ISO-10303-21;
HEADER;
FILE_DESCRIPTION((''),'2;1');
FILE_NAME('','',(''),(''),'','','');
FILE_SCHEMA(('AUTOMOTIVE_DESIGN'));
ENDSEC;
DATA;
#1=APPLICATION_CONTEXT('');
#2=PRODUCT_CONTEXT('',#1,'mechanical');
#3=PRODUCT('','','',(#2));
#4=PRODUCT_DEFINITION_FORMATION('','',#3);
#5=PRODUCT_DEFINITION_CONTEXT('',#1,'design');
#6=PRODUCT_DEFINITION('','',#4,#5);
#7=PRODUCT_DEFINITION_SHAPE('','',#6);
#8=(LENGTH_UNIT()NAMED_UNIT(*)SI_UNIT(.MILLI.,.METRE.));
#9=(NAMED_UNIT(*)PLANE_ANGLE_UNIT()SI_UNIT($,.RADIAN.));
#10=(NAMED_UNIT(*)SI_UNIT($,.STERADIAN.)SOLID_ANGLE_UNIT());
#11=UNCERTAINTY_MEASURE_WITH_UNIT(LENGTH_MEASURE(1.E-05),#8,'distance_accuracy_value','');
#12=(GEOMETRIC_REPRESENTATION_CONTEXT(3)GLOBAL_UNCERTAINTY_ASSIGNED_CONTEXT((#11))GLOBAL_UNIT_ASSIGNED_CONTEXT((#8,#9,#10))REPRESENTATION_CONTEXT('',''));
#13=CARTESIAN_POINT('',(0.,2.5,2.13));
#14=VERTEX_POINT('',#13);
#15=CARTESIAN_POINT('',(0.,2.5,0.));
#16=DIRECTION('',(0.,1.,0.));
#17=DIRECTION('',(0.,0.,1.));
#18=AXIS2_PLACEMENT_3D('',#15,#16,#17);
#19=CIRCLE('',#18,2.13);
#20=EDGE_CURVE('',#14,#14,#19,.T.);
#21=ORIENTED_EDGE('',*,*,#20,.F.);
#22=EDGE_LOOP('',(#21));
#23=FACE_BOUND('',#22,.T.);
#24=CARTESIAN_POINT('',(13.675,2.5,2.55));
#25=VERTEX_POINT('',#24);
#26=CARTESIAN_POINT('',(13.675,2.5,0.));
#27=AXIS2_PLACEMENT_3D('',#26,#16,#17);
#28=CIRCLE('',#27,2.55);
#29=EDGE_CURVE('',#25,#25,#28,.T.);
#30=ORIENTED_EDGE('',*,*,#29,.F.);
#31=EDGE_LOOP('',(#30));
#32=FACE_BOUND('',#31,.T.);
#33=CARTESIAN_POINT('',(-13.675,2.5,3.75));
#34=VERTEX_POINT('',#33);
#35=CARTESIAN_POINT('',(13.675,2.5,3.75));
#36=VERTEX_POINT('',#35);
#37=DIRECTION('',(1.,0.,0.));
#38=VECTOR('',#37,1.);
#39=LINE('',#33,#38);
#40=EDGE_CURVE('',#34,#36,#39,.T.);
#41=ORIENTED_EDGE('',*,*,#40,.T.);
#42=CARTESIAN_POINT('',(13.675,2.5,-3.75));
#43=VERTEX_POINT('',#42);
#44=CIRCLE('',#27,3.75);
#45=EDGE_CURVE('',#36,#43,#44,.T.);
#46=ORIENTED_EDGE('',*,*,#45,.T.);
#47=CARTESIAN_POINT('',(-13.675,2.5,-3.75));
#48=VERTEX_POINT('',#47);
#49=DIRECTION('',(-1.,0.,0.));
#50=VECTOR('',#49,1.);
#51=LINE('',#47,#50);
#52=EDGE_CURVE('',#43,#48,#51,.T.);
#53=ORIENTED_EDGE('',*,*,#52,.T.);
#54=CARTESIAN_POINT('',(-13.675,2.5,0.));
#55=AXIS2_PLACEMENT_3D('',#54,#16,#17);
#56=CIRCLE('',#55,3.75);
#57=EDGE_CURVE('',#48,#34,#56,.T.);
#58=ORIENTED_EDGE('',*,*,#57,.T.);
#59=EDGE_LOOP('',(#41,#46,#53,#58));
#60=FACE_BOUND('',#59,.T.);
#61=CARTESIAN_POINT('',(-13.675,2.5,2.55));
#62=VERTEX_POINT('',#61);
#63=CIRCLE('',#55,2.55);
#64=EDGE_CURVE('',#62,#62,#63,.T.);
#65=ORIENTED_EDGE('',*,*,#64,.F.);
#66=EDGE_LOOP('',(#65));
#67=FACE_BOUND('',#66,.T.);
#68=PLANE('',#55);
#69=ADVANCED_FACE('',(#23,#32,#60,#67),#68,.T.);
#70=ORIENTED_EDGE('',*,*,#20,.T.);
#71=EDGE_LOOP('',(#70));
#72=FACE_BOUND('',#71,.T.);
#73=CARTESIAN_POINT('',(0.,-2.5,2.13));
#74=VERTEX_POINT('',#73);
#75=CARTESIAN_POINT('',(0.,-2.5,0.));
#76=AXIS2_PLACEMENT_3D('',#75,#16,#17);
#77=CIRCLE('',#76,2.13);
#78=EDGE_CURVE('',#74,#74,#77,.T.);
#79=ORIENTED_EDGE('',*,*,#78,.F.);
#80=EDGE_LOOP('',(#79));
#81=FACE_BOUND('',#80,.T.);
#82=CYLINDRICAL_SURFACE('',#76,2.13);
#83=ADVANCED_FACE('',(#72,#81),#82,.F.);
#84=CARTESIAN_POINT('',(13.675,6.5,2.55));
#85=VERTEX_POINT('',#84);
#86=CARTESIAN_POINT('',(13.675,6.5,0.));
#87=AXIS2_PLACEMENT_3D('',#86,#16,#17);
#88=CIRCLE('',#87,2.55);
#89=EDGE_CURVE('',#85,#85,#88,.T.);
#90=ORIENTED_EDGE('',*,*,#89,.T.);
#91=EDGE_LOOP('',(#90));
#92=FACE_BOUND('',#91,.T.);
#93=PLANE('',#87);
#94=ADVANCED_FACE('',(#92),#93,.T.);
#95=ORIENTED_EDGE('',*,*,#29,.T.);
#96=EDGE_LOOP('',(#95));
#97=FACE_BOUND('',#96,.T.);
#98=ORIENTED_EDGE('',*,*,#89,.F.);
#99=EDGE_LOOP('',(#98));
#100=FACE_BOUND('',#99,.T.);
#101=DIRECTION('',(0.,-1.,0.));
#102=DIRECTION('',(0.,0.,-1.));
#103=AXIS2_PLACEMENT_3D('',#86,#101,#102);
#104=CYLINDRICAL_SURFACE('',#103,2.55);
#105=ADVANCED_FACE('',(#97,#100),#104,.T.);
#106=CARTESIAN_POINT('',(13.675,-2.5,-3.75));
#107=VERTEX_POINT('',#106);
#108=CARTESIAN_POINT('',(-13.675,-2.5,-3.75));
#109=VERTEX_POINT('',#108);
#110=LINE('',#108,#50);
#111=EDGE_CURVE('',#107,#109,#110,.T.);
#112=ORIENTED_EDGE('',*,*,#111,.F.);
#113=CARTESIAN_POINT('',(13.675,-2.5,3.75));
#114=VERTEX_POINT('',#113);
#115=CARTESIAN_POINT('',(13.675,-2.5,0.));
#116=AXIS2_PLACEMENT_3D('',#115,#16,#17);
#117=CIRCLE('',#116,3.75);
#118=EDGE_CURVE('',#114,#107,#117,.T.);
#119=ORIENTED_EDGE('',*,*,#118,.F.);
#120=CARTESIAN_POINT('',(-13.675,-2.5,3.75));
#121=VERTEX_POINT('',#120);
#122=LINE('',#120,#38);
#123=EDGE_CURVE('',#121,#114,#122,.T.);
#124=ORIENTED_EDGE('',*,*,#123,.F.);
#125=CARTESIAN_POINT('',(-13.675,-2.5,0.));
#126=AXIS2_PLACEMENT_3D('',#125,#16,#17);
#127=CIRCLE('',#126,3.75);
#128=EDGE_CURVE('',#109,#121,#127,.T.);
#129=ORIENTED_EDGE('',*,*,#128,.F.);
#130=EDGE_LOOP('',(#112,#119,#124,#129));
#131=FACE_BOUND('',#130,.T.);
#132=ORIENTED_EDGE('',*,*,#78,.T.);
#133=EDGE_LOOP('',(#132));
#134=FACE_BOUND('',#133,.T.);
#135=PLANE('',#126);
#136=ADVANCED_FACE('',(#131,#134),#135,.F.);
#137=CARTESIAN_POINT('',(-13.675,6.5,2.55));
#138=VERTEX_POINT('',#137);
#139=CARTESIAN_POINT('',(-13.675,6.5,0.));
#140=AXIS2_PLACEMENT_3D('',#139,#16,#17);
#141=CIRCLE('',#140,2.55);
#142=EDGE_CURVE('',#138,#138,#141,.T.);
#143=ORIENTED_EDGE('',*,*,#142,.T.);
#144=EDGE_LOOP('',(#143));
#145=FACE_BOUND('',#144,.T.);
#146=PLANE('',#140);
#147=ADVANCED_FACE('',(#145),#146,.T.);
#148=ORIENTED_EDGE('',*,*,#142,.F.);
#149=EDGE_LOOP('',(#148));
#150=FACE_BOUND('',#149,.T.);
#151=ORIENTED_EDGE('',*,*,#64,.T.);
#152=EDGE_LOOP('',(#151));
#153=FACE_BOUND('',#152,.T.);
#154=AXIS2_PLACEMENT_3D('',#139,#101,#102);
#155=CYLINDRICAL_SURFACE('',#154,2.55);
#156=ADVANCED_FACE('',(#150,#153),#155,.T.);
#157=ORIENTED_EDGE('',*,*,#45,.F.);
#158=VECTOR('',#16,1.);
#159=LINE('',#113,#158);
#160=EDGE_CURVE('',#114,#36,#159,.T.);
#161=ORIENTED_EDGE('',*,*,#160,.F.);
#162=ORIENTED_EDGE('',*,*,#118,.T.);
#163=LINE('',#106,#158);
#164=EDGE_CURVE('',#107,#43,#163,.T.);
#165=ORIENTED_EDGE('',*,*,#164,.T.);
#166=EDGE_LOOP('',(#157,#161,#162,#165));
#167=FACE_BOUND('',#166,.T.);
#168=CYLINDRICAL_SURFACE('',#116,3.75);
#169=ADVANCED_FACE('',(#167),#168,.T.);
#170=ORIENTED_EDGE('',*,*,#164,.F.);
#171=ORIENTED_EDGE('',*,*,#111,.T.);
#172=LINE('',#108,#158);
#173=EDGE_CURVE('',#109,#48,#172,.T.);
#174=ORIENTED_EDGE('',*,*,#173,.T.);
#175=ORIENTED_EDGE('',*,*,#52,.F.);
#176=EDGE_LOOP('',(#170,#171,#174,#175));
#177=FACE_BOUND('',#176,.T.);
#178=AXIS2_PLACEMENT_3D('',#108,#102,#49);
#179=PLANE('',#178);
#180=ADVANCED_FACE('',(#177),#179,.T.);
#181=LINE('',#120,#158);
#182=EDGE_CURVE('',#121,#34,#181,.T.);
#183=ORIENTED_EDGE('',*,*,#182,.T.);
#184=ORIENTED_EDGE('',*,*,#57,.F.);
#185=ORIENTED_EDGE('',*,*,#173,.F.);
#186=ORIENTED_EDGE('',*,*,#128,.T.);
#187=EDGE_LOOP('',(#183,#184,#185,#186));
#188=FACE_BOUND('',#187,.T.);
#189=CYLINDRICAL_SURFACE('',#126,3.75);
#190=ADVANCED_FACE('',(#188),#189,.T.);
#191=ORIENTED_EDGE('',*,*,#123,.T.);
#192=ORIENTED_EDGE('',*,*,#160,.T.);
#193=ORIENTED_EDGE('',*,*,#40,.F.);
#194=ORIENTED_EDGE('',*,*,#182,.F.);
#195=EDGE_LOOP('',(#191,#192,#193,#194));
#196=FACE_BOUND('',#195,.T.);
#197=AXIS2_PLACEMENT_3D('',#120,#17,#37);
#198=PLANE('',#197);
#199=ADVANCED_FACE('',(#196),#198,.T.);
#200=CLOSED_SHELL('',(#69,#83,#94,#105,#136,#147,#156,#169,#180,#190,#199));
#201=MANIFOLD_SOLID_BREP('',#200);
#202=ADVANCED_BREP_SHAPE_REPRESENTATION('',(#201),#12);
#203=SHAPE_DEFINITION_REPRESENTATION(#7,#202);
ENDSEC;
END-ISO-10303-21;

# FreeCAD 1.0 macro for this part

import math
import FreeCAD as App
import Part
import Sketcher
Q = App.Units.Quantity

doc = App.newDocument("Part")
params = doc.addObject("Spreadsheet::Sheet", "Params")
for row, (alias, value) in enumerate([
    ("sketch1_diameter", "4.26 mm"),
    ("sketch1_radius", "3.75 mm"),
    ("sketch1_width", "27.35 mm"),
    ("pad1_length", "2.5 mm"),
    ("pad1_length2", "2.5 mm"),
    ("sketch2_diameter", "5.1 mm"),
    ("pad2_length", "4 mm"),
], start=1):
    params.set(f"A{row}", alias)
    params.set(f"B{row}", "=" + value)
    params.setAlias(f"B{row}", alias)

body = doc.addObject("PartDesign::Body", "Body")

# Sketch on XZ plane
sketch1 = doc.addObject("Sketcher::SketchObject", "Sketch")
body.addObject(sketch1)
sketch1.AttachmentSupport = (doc.XZ_Plane, [""])
sketch1.MapMode = "FlatFace"
sketch1.addGeometry([
    Part.LineSegment(App.Vector(13.7, -3.8, 0), App.Vector(-13.7, -3.8, 0)),  # 0
    Part.ArcOfCircle(Part.Circle(App.Vector(-13.7, 0, 0), App.Vector(0, 0, 1), 3.8), math.radians(90), math.radians(270)),  # 1
    Part.LineSegment(App.Vector(-13.7, 3.8, 0), App.Vector(13.7, 3.8, 0)),  # 2
    Part.ArcOfCircle(Part.Circle(App.Vector(13.7, 0, 0), App.Vector(0, 0, 1), 3.8), math.radians(-90), math.radians(90)),  # 3
    Part.Circle(App.Vector(0, 0, 0), App.Vector(0, 0, 1), 2.1),  # 4
], False)
sketch1.addConstraint([
    Sketcher.Constraint("Tangent", 0, 2, 1, 2),
    Sketcher.Constraint("Tangent", 1, 1, 2, 1),
    Sketcher.Constraint("Tangent", 2, 2, 3, 2),
    Sketcher.Constraint("Tangent", 3, 1, 0, 1),
    Sketcher.Constraint("Horizontal", 0),
    Sketcher.Constraint("Horizontal", 2),
    Sketcher.Constraint("Coincident", 4, 3, -1, 1),
    Sketcher.Constraint("Symmetric", 1, 3, 3, 3, -1, 1),
    Sketcher.Constraint("Diameter", 4, Q("4.26 mm")),
    Sketcher.Constraint("Radius", 1, Q("3.75 mm")),
    Sketcher.Constraint("DistanceX", 0, 2, 0, 1, Q("27.35 mm")),
])
sketch1.setExpression("Constraints[8]", "Params.sketch1_diameter")
sketch1.setExpression("Constraints[9]", "Params.sketch1_radius")
sketch1.setExpression("Constraints[10]", "Params.sketch1_width")
pad1 = doc.addObject("PartDesign::Pad", "Pad")
body.addObject(pad1)
pad1.Profile = sketch1
pad1.Type = "TwoLengths"
pad1.setExpression("Length", "Params.pad1_length")
pad1.setExpression("Length2", "Params.pad1_length2")
pad1.Reversed = True

# Sketch on XZ plane
sketch2 = doc.addObject("Sketcher::SketchObject", "Sketch001")
body.addObject(sketch2)
sketch2.AttachmentSupport = (doc.XZ_Plane, [""])
sketch2.MapMode = "FlatFace"
sketch2.AttachmentOffset = App.Placement(App.Vector(0, 0, -2.5), App.Rotation())
sketch2.addGeometry([
    Part.Circle(App.Vector(-13.7, 0, 0), App.Vector(0, 0, 1), 2.5),
    Part.Circle(App.Vector(13.7, 0, 0), App.Vector(0, 0, 1), 2.5),
], False)
sketch2.addConstraint([
    Sketcher.Constraint("Equal", 0, 1),
    Sketcher.Constraint("Symmetric", 0, 3, 1, 3, -1, 1),
    Sketcher.Constraint("PointOnObject", 0, 3, -1),
    Sketcher.Constraint("Diameter", 0, Q("5.1 mm")),
    Sketcher.Constraint("DistanceX", 0, 3, 1, 3, Q("27.35 mm")),
])
sketch2.setExpression("Constraints[3]", "Params.sketch2_diameter")
pad2 = doc.addObject("PartDesign::Pad", "Pad001")
body.addObject(pad2)
pad2.Profile = sketch2
pad2.setExpression("Length", "Params.pad2_length")
pad2.Reversed = True

doc.recompute()
